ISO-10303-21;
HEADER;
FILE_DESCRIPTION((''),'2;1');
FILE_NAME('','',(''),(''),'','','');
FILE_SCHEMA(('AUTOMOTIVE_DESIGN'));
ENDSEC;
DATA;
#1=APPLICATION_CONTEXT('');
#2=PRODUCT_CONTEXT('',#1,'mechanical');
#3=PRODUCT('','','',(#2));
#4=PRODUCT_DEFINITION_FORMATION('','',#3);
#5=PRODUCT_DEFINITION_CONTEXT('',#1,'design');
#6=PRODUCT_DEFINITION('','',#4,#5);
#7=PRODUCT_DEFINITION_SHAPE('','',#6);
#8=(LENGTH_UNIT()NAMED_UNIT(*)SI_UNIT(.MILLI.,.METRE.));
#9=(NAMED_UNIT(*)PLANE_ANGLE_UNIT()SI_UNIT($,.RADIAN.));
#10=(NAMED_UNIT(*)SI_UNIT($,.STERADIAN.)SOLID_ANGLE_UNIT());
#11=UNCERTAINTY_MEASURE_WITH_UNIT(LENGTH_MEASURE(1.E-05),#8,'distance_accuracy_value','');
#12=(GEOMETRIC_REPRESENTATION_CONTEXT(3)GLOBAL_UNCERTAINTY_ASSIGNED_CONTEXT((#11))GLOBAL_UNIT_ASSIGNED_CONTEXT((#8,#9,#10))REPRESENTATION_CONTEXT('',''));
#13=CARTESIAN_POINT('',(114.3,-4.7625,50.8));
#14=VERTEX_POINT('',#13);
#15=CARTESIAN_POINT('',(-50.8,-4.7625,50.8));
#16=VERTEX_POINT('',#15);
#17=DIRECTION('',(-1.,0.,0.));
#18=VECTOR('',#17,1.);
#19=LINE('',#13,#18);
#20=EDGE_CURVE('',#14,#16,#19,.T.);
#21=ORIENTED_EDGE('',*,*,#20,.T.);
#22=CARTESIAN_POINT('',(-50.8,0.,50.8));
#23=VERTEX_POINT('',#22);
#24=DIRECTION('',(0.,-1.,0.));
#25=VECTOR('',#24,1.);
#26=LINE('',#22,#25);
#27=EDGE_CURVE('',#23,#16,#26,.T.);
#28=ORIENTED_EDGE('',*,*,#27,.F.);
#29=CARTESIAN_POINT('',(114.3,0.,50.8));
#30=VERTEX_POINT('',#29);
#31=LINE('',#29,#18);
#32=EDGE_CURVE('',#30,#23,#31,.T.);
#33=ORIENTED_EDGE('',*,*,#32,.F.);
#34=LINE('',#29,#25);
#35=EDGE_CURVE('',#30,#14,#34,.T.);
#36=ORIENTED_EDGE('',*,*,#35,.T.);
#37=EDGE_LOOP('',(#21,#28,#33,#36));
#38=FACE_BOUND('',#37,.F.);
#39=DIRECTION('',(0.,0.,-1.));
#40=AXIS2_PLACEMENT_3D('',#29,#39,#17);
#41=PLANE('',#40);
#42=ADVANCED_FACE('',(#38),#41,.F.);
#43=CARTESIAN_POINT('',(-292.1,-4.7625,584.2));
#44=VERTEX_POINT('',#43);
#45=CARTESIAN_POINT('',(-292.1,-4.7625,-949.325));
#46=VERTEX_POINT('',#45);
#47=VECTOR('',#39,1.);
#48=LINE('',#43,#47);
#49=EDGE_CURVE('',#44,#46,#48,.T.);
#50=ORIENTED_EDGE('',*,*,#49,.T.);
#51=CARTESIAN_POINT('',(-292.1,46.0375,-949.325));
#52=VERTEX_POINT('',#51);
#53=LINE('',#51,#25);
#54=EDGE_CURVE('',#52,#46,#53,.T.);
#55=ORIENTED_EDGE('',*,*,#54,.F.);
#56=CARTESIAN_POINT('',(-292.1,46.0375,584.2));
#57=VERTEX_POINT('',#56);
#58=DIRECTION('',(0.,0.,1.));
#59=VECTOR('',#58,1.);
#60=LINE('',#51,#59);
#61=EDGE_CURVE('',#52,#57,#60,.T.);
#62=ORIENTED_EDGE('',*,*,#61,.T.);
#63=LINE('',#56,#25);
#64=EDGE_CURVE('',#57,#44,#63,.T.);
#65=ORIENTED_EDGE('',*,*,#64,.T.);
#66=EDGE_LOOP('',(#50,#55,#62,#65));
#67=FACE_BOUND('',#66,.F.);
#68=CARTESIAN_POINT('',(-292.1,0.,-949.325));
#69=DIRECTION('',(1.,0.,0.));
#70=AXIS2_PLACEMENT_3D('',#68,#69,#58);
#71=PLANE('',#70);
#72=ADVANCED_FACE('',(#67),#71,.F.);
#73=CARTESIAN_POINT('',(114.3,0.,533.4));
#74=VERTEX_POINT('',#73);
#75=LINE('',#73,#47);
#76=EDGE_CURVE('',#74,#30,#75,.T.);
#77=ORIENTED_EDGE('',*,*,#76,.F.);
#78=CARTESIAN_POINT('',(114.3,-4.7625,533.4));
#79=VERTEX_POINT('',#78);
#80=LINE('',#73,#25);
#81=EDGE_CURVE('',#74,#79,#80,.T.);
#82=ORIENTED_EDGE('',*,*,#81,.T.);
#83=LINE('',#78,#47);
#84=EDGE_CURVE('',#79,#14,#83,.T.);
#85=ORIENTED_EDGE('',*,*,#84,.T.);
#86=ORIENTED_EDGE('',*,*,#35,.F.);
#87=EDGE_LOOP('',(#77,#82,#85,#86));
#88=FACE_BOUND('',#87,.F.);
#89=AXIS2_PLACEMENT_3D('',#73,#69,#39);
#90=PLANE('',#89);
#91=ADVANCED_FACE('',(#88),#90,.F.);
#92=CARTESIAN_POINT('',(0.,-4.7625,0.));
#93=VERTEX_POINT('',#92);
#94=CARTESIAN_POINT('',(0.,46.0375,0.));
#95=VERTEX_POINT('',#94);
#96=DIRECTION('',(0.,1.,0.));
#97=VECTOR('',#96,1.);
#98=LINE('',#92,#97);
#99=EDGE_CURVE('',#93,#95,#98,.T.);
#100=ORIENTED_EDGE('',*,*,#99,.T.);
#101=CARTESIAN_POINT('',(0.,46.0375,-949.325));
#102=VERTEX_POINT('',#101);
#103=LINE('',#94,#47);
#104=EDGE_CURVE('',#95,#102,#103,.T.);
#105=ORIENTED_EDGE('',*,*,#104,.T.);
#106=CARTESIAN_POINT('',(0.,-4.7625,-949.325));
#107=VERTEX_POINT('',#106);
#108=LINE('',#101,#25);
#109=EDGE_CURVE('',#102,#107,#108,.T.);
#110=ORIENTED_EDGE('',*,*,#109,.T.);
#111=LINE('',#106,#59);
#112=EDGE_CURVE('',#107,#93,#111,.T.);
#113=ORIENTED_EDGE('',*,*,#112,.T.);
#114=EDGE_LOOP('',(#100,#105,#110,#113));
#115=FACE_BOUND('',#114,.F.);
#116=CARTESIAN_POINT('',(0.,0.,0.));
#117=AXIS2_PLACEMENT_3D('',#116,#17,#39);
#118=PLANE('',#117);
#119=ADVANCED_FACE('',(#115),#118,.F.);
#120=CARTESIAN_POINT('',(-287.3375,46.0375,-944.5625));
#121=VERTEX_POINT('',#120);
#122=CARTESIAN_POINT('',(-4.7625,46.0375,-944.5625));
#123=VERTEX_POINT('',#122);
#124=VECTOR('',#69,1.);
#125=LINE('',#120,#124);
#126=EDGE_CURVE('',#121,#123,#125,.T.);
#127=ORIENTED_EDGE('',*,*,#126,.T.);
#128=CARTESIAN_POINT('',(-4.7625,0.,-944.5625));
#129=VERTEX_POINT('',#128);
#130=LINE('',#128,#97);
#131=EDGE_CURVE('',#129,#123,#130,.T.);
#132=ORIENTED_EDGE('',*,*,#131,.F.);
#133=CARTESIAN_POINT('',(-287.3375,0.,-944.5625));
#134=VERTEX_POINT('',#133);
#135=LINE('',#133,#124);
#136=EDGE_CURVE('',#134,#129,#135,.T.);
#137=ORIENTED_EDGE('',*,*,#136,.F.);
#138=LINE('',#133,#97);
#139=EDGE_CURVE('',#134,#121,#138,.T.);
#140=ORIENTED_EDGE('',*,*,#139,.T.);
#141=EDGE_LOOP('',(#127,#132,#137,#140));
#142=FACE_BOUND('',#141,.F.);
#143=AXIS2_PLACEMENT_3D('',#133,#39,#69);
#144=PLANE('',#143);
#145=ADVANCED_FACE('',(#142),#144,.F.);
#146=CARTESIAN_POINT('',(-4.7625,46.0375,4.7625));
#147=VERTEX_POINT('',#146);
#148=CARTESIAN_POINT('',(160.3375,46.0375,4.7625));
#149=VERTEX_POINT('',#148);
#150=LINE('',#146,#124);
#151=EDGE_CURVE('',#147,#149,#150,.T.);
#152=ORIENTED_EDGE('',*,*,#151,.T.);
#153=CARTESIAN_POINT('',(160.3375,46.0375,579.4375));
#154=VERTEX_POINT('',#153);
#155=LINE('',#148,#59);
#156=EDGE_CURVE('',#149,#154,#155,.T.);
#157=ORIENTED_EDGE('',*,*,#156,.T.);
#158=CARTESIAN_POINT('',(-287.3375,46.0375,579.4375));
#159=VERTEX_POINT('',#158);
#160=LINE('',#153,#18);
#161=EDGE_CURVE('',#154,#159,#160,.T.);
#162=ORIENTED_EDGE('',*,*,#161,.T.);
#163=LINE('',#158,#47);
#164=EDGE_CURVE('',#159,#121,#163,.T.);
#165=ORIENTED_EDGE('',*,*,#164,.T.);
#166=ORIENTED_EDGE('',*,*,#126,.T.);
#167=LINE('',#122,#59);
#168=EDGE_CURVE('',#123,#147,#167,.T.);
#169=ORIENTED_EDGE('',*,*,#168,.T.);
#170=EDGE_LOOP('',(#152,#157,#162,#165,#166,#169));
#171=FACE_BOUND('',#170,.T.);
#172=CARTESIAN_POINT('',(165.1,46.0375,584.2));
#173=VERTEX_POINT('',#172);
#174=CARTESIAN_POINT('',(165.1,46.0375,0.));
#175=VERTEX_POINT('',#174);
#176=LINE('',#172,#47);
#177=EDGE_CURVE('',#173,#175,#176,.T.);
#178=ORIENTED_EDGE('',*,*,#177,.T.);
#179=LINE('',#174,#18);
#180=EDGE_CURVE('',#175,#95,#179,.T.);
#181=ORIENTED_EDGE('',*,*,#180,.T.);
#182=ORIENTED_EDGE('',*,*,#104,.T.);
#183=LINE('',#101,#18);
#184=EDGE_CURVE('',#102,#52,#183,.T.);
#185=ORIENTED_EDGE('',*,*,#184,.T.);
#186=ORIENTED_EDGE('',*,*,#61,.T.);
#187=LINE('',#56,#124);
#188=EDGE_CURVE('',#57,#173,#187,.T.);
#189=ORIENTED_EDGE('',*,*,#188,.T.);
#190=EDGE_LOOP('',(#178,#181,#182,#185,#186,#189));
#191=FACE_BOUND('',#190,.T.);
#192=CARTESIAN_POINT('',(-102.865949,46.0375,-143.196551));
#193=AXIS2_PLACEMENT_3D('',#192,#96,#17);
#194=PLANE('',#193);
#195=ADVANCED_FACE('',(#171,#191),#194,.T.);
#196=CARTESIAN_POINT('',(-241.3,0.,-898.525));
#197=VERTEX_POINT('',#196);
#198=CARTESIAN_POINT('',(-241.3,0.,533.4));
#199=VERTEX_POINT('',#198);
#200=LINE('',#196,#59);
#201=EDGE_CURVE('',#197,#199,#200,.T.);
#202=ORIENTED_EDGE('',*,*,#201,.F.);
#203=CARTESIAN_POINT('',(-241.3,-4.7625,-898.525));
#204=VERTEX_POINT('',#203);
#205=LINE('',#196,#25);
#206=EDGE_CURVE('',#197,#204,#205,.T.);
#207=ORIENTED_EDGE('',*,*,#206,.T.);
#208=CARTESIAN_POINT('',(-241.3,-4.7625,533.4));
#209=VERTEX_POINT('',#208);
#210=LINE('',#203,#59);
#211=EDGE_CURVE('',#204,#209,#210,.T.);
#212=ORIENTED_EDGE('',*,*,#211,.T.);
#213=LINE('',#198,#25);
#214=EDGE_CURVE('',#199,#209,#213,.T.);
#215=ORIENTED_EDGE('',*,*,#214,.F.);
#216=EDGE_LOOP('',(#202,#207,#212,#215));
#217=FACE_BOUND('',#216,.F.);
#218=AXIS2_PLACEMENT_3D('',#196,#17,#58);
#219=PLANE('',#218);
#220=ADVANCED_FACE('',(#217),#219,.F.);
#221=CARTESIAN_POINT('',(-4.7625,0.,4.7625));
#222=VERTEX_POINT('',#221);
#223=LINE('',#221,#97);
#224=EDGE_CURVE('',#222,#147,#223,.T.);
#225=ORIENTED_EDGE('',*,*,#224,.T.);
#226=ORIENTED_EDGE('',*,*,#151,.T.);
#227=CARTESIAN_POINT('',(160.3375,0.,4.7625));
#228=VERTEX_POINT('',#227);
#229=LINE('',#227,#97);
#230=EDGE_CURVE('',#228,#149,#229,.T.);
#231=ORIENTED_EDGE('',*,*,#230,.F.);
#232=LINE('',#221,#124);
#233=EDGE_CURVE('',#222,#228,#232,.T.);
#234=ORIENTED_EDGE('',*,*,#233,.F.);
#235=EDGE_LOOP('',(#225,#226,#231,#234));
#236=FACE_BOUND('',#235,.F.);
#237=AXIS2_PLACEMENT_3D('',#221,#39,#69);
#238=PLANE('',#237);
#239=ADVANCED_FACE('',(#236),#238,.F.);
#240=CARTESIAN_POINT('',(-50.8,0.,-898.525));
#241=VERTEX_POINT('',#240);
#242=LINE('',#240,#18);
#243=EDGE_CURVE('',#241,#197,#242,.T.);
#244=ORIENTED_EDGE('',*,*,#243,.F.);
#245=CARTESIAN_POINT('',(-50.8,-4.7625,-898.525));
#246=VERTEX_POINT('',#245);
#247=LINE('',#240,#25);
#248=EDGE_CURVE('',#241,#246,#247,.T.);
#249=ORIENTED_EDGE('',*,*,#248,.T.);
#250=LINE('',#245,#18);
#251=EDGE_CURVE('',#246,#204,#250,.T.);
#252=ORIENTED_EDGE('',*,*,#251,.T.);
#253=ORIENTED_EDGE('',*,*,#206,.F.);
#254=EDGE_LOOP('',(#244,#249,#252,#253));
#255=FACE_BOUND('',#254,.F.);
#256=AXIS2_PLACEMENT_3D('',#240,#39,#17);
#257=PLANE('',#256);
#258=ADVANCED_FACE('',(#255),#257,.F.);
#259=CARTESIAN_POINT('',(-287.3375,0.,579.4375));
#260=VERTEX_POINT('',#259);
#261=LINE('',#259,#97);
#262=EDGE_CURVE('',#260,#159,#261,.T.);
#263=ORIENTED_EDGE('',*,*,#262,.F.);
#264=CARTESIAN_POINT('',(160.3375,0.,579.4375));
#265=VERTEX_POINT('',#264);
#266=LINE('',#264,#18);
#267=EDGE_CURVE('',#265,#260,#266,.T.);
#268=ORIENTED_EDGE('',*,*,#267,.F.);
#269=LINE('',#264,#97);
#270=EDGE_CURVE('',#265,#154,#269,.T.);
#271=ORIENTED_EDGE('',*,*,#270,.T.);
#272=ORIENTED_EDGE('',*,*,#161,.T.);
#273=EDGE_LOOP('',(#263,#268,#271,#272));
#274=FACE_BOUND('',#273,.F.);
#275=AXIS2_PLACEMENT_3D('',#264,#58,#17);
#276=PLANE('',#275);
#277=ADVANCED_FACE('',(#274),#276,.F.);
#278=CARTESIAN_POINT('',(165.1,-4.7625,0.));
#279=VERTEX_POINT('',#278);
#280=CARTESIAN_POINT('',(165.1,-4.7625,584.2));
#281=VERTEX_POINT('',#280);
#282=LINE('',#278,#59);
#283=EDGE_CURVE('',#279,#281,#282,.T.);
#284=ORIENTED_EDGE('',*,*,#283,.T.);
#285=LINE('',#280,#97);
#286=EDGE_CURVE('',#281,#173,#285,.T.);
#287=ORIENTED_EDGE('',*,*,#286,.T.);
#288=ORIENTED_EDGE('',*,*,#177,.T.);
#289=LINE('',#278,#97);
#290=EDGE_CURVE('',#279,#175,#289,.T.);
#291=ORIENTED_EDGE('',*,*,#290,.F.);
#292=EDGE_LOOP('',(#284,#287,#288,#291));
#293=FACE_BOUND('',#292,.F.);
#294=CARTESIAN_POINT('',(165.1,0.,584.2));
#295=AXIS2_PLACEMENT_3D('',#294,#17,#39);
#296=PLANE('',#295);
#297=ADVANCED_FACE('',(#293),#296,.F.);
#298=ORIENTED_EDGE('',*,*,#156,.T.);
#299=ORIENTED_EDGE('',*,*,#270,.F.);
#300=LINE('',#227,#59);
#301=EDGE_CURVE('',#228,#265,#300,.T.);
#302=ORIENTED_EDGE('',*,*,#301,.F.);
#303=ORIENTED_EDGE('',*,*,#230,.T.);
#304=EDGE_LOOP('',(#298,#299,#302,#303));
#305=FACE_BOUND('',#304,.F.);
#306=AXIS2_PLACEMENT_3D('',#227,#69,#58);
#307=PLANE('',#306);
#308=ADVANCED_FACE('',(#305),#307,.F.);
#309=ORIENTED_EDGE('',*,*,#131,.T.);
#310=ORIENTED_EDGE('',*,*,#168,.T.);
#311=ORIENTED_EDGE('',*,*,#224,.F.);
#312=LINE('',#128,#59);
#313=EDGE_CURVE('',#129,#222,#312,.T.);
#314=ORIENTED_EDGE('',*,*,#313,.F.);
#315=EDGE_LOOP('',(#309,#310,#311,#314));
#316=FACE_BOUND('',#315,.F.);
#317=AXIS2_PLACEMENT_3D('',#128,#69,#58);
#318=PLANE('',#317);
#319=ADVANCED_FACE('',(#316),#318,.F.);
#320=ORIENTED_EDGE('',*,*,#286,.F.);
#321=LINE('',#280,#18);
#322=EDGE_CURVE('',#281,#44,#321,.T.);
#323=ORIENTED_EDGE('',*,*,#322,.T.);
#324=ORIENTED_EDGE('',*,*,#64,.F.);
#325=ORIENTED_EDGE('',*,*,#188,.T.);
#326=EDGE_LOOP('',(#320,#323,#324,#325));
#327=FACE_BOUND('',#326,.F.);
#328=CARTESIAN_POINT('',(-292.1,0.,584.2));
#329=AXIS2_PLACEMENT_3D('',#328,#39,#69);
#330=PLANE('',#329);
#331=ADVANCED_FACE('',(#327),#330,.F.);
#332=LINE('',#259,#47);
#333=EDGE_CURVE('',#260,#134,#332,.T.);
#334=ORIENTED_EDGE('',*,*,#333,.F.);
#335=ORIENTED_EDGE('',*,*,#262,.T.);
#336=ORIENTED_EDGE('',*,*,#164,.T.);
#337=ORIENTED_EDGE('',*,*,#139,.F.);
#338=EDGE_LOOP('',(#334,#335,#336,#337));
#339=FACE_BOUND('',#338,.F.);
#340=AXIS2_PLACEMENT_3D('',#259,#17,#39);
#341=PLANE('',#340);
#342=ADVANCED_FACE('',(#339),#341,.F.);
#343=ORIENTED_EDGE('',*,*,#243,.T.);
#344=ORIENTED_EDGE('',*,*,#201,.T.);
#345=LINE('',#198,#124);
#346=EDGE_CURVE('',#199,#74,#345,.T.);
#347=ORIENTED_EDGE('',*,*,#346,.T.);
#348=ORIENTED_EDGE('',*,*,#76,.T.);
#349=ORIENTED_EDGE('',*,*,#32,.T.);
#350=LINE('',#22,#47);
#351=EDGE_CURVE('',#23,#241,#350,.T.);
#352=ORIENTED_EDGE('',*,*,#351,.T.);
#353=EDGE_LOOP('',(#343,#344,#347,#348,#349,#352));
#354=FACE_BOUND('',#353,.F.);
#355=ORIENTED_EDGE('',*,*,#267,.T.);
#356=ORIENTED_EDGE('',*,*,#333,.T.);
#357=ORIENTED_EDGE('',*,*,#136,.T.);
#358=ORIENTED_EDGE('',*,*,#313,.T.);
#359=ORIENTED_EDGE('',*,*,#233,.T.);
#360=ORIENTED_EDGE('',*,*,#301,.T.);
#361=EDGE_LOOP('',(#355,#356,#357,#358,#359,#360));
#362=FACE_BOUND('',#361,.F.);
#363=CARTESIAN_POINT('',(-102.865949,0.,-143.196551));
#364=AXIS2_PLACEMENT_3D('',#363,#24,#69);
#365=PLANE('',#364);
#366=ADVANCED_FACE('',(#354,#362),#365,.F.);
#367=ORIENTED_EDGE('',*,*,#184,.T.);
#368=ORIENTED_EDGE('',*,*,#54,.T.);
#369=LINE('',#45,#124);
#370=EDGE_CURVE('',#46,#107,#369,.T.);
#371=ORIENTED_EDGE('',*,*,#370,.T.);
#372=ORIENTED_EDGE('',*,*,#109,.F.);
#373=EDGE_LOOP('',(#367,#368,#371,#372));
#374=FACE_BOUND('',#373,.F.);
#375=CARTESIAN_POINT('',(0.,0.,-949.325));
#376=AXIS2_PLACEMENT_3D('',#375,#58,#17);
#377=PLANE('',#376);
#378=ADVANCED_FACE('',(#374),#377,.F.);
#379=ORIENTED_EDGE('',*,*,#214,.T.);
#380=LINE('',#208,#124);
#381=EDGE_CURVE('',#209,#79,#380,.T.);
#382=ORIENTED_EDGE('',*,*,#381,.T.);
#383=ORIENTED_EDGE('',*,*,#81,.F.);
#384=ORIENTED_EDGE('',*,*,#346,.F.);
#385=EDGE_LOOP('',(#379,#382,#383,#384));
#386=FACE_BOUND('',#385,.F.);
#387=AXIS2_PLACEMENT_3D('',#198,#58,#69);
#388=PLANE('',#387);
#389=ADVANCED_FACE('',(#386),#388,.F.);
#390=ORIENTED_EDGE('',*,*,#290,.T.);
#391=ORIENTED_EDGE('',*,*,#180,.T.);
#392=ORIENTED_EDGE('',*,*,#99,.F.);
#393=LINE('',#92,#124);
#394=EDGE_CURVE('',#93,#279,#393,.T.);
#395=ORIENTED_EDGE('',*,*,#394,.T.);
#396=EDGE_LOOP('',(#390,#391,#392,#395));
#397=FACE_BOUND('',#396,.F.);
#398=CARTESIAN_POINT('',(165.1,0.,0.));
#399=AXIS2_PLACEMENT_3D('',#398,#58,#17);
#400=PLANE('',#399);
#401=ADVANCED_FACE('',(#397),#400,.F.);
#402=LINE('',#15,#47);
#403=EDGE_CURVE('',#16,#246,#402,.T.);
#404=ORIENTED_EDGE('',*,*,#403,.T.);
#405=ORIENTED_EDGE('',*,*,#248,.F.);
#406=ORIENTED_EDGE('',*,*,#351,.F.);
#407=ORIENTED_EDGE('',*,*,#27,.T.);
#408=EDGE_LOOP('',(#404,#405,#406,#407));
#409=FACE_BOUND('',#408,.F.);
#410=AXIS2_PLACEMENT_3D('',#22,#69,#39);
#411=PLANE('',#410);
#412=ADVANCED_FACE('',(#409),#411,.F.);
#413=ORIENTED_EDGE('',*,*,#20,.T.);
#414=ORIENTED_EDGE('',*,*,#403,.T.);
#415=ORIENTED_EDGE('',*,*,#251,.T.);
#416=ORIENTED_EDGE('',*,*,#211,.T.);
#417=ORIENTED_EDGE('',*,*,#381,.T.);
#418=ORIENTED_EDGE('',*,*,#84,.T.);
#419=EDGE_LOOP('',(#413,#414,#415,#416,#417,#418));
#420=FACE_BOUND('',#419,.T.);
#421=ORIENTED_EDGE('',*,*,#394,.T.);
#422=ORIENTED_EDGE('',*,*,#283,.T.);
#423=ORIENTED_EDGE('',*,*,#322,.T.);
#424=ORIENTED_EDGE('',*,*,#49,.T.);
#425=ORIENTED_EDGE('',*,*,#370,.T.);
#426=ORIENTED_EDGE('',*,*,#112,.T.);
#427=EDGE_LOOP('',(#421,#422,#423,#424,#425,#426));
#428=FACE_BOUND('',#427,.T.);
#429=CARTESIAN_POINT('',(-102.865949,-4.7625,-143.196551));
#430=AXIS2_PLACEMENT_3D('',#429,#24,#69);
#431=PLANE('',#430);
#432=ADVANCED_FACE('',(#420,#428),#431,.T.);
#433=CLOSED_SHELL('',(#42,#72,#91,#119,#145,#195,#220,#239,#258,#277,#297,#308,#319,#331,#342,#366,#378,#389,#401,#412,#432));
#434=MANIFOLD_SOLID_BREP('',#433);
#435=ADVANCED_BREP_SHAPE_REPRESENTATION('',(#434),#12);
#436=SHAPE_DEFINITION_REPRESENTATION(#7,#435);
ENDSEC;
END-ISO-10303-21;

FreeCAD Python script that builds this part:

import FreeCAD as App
import Part
import Sketcher
from FreeCAD import Vector
Q = App.Units.Quantity


def add_polygon(sketch, points):
    """Adds a closed chain of lines whose ends are joined by coincident constraints."""
    first, n = sketch.GeometryCount, len(points)
    for a, b in zip(points, points[1:] + points[:1]):
        sketch.addGeometry(Part.LineSegment(App.Vector(*a, 0), App.Vector(*b, 0)), False)
    for i in range(n):
        sketch.addConstraint(Sketcher.Constraint("Coincident", first + i, 2, first + (i + 1) % n, 1))

doc = App.newDocument("Part")
body = doc.addObject("PartDesign::Body", "Body")

# Sketch on XZ plane
sketch1 = body.newObject("Sketcher::SketchObject", "Sketch")
sketch1.AttachmentSupport = (doc.getObject("XZ_Plane"), [""])
sketch1.MapMode = "FlatFace"
add_polygon(sketch1, [(165, 0), (165, 584), (-292, 584), (-292, -949), (0, -949), (0, 0)])  # lines 0-5
add_polygon(sketch1, [(-241, -899), (-241, 533), (114, 533), (114, 51), (-51, 51), (-51, -899)])  # lines 6-11
sketch1.addConstraint([
    Sketcher.Constraint("Vertical", 0),
    Sketcher.Constraint("Horizontal", 1),
    Sketcher.Constraint("Vertical", 2),
    Sketcher.Constraint("Horizontal", 3),
    Sketcher.Constraint("Vertical", 4),
    Sketcher.Constraint("Horizontal", 5),
    Sketcher.Constraint("Vertical", 6),
    Sketcher.Constraint("Horizontal", 7),
    Sketcher.Constraint("Vertical", 8),
    Sketcher.Constraint("Horizontal", 9),
    Sketcher.Constraint("Vertical", 10),
    Sketcher.Constraint("Horizontal", 11),
    Sketcher.Constraint("Coincident", 4, 2, -1, 1),
    Sketcher.Constraint("Equal", 5, 9),
    Sketcher.Constraint("Equal", 4, 10),
    Sketcher.Constraint("DistanceX", 1, 2, 1, 1, Q("18 in")),
    Sketcher.Constraint("DistanceX", 7, 1, 7, 2, Q("14 in")),
    Sketcher.Constraint("DistanceY", 0, 1, 0, 2, Q("23 in")),
    Sketcher.Constraint("DistanceY", 8, 2, 8, 1, Q("19 in")),
    Sketcher.Constraint("DistanceX", 3, 1, 3, 2, Q("11.5 in")),
    Sketcher.Constraint("DistanceY", -1, 1, 6, 2, Q("21 in")),
    Sketcher.Constraint("DistanceX", 9, 2, -1, 1, Q("2 in")),
    Sketcher.Constraint("DistanceY", 2, 2, 2, 1, Q("60.375 in")),
])
pad1 = body.newObject("PartDesign::Pad", "Pad")
pad1.Profile = sketch1
pad1.Length = Q("0.1875 in")

# Sketch on XZ plane
sketch2 = body.newObject("Sketcher::SketchObject", "Sketch001")
sketch2.AttachmentSupport = (doc.getObject("XZ_Plane"), [""])
sketch2.MapMode = "FlatFace"
add_polygon(sketch2, [(-292, 584), (165, 584), (165, 0), (0, 0), (0, -949), (-292, -949)])  # lines 0-5
add_polygon(sketch2, [(-287, -945), (-5, -945), (-5, 5), (160, 5), (160, 579), (-287, 579)])  # lines 6-11
sketch2.addConstraint([
    Sketcher.Constraint("Horizontal", 0),
    Sketcher.Constraint("Vertical", 1),
    Sketcher.Constraint("Horizontal", 2),
    Sketcher.Constraint("Vertical", 3),
    Sketcher.Constraint("Horizontal", 4),
    Sketcher.Constraint("Vertical", 5),
    Sketcher.Constraint("Horizontal", 6),
    Sketcher.Constraint("Vertical", 7),
    Sketcher.Constraint("Horizontal", 8),
    Sketcher.Constraint("Vertical", 9),
    Sketcher.Constraint("Horizontal", 10),
    Sketcher.Constraint("Vertical", 11),
    Sketcher.Constraint("Coincident", 2, 2, -1, 1),
    Sketcher.Constraint("Equal", 2, 8),
    Sketcher.Constraint("Equal", 3, 7),
    Sketcher.Constraint("DistanceX", 0, 1, 0, 2, Q("18 in")),
    Sketcher.Constraint("DistanceY", 1, 2, 1, 1, Q("23 in")),
    Sketcher.Constraint("DistanceY", 11, 2, 11, 1, Q("60 in")),
    Sketcher.Constraint("DistanceX", 2, 2, 2, 1, Q("6.5 in")),
    Sketcher.Constraint("DistanceX", 6, 1, 6, 2, Q("11.125 in")),
    Sketcher.Constraint("DistanceY", 3, 2, 3, 1, Q("37.375 in")),
    Sketcher.Constraint("DistanceX", 6, 2, -1, 1, Q("0.1875 in")),
    Sketcher.Constraint("DistanceY", 6, 2, -1, 1, Q("37.1875 in")),
])
pad2 = body.newObject("PartDesign::Pad", "Pad001")
pad2.Profile = sketch2
pad2.Length = Q("1.8125 in")
pad2.Reversed = True

doc.recompute()
